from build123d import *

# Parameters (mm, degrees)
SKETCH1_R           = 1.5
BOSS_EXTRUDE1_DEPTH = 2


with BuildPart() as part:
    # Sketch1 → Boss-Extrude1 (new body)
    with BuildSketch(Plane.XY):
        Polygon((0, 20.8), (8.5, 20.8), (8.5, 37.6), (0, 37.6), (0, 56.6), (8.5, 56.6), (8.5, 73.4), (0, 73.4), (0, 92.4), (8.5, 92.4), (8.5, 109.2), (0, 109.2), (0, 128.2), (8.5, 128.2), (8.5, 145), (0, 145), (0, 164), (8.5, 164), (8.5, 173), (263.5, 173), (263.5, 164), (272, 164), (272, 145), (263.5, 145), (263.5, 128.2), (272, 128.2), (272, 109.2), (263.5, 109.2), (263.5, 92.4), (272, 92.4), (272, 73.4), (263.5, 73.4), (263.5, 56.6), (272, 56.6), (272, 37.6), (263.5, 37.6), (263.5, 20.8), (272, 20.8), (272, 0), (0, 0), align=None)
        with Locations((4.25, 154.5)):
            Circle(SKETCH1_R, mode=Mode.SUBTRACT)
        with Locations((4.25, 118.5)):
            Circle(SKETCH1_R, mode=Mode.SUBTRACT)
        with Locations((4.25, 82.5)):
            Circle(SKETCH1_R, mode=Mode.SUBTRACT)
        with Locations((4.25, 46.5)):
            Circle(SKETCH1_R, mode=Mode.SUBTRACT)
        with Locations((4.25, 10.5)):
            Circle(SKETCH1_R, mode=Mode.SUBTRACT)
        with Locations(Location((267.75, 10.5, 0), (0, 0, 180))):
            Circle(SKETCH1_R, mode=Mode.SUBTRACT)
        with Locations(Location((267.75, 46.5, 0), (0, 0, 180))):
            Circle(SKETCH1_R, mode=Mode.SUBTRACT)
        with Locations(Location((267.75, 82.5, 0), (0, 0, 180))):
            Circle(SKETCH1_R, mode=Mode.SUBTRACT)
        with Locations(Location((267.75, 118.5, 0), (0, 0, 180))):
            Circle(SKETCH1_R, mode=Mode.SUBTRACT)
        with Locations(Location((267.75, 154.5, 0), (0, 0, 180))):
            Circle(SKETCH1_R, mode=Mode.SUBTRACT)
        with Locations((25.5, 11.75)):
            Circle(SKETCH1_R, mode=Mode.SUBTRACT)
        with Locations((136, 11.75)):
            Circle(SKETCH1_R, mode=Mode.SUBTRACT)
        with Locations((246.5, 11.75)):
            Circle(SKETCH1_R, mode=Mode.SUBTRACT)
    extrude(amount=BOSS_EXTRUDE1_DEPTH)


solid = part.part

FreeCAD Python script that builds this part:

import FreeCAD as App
import Part
import Sketcher

V = App.Vector

doc = App.newDocument("Part")
body = doc.addObject("PartDesign::Body", "Body")

# Sketch on XY plane
sketch1 = body.newObject("Sketcher::SketchObject", "Sketch")
sketch1.AttachmentSupport = (doc.getObject("XY_Plane"), [""])
sketch1.MapMode = "FlatFace"
sketch1.addGeometry(Part.LineSegment(V(8.5, 20.8, 0), V(0, 20.8, 0)), False)
sketch1.addGeometry(Part.LineSegment(V(0, 20.8, 0), V(0, 0, 0)), False)
sketch1.addGeometry(Part.LineSegment(V(0, 0, 0), V(272, 0, 0)), False)
sketch1.addGeometry(Part.LineSegment(V(272, 0, 0), V(272, 20.8, 0)), False)
sketch1.addGeometry(Part.LineSegment(V(272, 20.8, 0), V(263.5, 20.8, 0)), False)
sketch1.addGeometry(Part.LineSegment(V(263.5, 20.8, 0), V(263.5, 37.6, 0)), False)
sketch1.addGeometry(Part.LineSegment(V(263.5, 37.6, 0), V(272, 37.6, 0)), False)
sketch1.addGeometry(Part.LineSegment(V(272, 37.6, 0), V(272, 56.6, 0)), False)
sketch1.addGeometry(Part.LineSegment(V(272, 56.6, 0), V(263.5, 56.6, 0)), False)
sketch1.addGeometry(Part.LineSegment(V(263.5, 56.6, 0), V(263.5, 73.4, 0)), False)
sketch1.addGeometry(Part.LineSegment(V(263.5, 73.4, 0), V(272, 73.4, 0)), False)
sketch1.addGeometry(Part.LineSegment(V(272, 73.4, 0), V(272, 92.4, 0)), False)
sketch1.addGeometry(Part.LineSegment(V(272, 92.4, 0), V(263.5, 92.4, 0)), False)
sketch1.addGeometry(Part.LineSegment(V(263.5, 92.4, 0), V(263.5, 109.2, 0)), False)
sketch1.addGeometry(Part.LineSegment(V(263.5, 109.2, 0), V(272, 109.2, 0)), False)
sketch1.addGeometry(Part.LineSegment(V(272, 109.2, 0), V(272, 128.2, 0)), False)
sketch1.addGeometry(Part.LineSegment(V(272, 128.2, 0), V(263.5, 128.2, 0)), False)
sketch1.addGeometry(Part.LineSegment(V(263.5, 128.2, 0), V(263.5, 145, 0)), False)
sketch1.addGeometry(Part.LineSegment(V(263.5, 145, 0), V(272, 145, 0)), False)
sketch1.addGeometry(Part.LineSegment(V(272, 145, 0), V(272, 164, 0)), False)
sketch1.addGeometry(Part.LineSegment(V(272, 164, 0), V(263.5, 164, 0)), False)
sketch1.addGeometry(Part.LineSegment(V(263.5, 164, 0), V(263.5, 173, 0)), False)
sketch1.addGeometry(Part.LineSegment(V(263.5, 173, 0), V(8.5, 173, 0)), False)
sketch1.addGeometry(Part.LineSegment(V(8.5, 173, 0), V(8.5, 164, 0)), False)
sketch1.addGeometry(Part.LineSegment(V(8.5, 164, 0), V(0, 164, 0)), False)
sketch1.addGeometry(Part.LineSegment(V(0, 164, 0), V(0, 145, 0)), False)
sketch1.addGeometry(Part.LineSegment(V(0, 145, 0), V(8.5, 145, 0)), False)
sketch1.addGeometry(Part.LineSegment(V(8.5, 145, 0), V(8.5, 128.2, 0)), False)
sketch1.addGeometry(Part.LineSegment(V(8.5, 128.2, 0), V(0, 128.2, 0)), False)
sketch1.addGeometry(Part.LineSegment(V(0, 128.2, 0), V(0, 109.2, 0)), False)
sketch1.addGeometry(Part.LineSegment(V(0, 109.2, 0), V(8.5, 109.2, 0)), False)
sketch1.addGeometry(Part.LineSegment(V(8.5, 109.2, 0), V(8.5, 92.4, 0)), False)
sketch1.addGeometry(Part.LineSegment(V(8.5, 92.4, 0), V(0, 92.4, 0)), False)
sketch1.addGeometry(Part.LineSegment(V(0, 92.4, 0), V(0, 73.4, 0)), False)
sketch1.addGeometry(Part.LineSegment(V(0, 73.4, 0), V(8.5, 73.4, 0)), False)
sketch1.addGeometry(Part.LineSegment(V(8.5, 73.4, 0), V(8.5, 56.6, 0)), False)
sketch1.addGeometry(Part.LineSegment(V(8.5, 56.6, 0), V(0, 56.6, 0)), False)
sketch1.addGeometry(Part.LineSegment(V(0, 56.6, 0), V(0, 37.6, 0)), False)
sketch1.addGeometry(Part.LineSegment(V(0, 37.6, 0), V(8.5, 37.6, 0)), False)
sketch1.addGeometry(Part.LineSegment(V(8.5, 37.6, 0), V(8.5, 20.8, 0)), False)
sketch1.addGeometry(Part.Circle(V(267.8, 10.5, 0), V(0, 0, 1), 1.5), False)
sketch1.addGeometry(Part.Circle(V(246.5, 11.8, 0), V(0, 0, 1), 1.5), False)
sketch1.addGeometry(Part.Circle(V(267.8, 46.5, 0), V(0, 0, 1), 1.5), False)
sketch1.addGeometry(Part.Circle(V(136, 11.8, 0), V(0, 0, 1), 1.5), False)
sketch1.addGeometry(Part.Circle(V(25.5, 11.8, 0), V(0, 0, 1), 1.5), False)
sketch1.addGeometry(Part.Circle(V(4.2, 10.5, 0), V(0, 0, 1), 1.5), False)
sketch1.addGeometry(Part.Circle(V(4.2, 46.5, 0), V(0, 0, 1), 1.5), False)
sketch1.addGeometry(Part.Circle(V(267.8, 82.5, 0), V(0, 0, 1), 1.5), False)
sketch1.addGeometry(Part.Circle(V(267.8, 118.5, 0), V(0, 0, 1), 1.5), False)
sketch1.addGeometry(Part.Circle(V(267.8, 154.5, 0), V(0, 0, 1), 1.5), False)
sketch1.addGeometry(Part.Circle(V(4.2, 82.5, 0), V(0, 0, 1), 1.5), False)
sketch1.addGeometry(Part.Circle(V(4.2, 118.5, 0), V(0, 0, 1), 1.5), False)
sketch1.addGeometry(Part.Circle(V(4.2, 154.5, 0), V(0, 0, 1), 1.5), False)
sketch1.addConstraint(Sketcher.Constraint("Coincident", 0, 2, 1, 1))
sketch1.addConstraint(Sketcher.Constraint("Coincident", 1, 2, 2, 1))
sketch1.addConstraint(Sketcher.Constraint("Coincident", 2, 2, 3, 1))
sketch1.addConstraint(Sketcher.Constraint("Coincident", 3, 2, 4, 1))
sketch1.addConstraint(Sketcher.Constraint("Coincident", 4, 2, 5, 1))
sketch1.addConstraint(Sketcher.Constraint("Coincident", 5, 2, 6, 1))
sketch1.addConstraint(Sketcher.Constraint("Coincident", 6, 2, 7, 1))
sketch1.addConstraint(Sketcher.Constraint("Coincident", 7, 2, 8, 1))
sketch1.addConstraint(Sketcher.Constraint("Coincident", 8, 2, 9, 1))
sketch1.addConstraint(Sketcher.Constraint("Coincident", 9, 2, 10, 1))
sketch1.addConstraint(Sketcher.Constraint("Coincident", 10, 2, 11, 1))
sketch1.addConstraint(Sketcher.Constraint("Coincident", 11, 2, 12, 1))
sketch1.addConstraint(Sketcher.Constraint("Coincident", 12, 2, 13, 1))
sketch1.addConstraint(Sketcher.Constraint("Coincident", 13, 2, 14, 1))
sketch1.addConstraint(Sketcher.Constraint("Coincident", 14, 2, 15, 1))
sketch1.addConstraint(Sketcher.Constraint("Coincident", 15, 2, 16, 1))
sketch1.addConstraint(Sketcher.Constraint("Coincident", 16, 2, 17, 1))
sketch1.addConstraint(Sketcher.Constraint("Coincident", 17, 2, 18, 1))
sketch1.addConstraint(Sketcher.Constraint("Coincident", 18, 2, 19, 1))
sketch1.addConstraint(Sketcher.Constraint("Coincident", 19, 2, 20, 1))
sketch1.addConstraint(Sketcher.Constraint("Coincident", 20, 2, 21, 1))
sketch1.addConstraint(Sketcher.Constraint("Coincident", 21, 2, 22, 1))
sketch1.addConstraint(Sketcher.Constraint("Coincident", 22, 2, 23, 1))
sketch1.addConstraint(Sketcher.Constraint("Coincident", 23, 2, 24, 1))
sketch1.addConstraint(Sketcher.Constraint("Coincident", 24, 2, 25, 1))
sketch1.addConstraint(Sketcher.Constraint("Coincident", 25, 2, 26, 1))
sketch1.addConstraint(Sketcher.Constraint("Coincident", 26, 2, 27, 1))
sketch1.addConstraint(Sketcher.Constraint("Coincident", 27, 2, 28, 1))
sketch1.addConstraint(Sketcher.Constraint("Coincident", 28, 2, 29, 1))
sketch1.addConstraint(Sketcher.Constraint("Coincident", 29, 2, 30, 1))
sketch1.addConstraint(Sketcher.Constraint("Coincident", 30, 2, 31, 1))
sketch1.addConstraint(Sketcher.Constraint("Coincident", 31, 2, 32, 1))
sketch1.addConstraint(Sketcher.Constraint("Coincident", 32, 2, 33, 1))
sketch1.addConstraint(Sketcher.Constraint("Coincident", 33, 2, 34, 1))
sketch1.addConstraint(Sketcher.Constraint("Coincident", 34, 2, 35, 1))
sketch1.addConstraint(Sketcher.Constraint("Coincident", 35, 2, 36, 1))
sketch1.addConstraint(Sketcher.Constraint("Coincident", 36, 2, 37, 1))
sketch1.addConstraint(Sketcher.Constraint("Coincident", 37, 2, 38, 1))
sketch1.addConstraint(Sketcher.Constraint("Coincident", 38, 2, 39, 1))
sketch1.addConstraint(Sketcher.Constraint("Coincident", 39, 2, 0, 1))
sketch1.addConstraint(Sketcher.Constraint("Horizontal", 0))
sketch1.addConstraint(Sketcher.Constraint("Vertical", 1))
sketch1.addConstraint(Sketcher.Constraint("Horizontal", 2))
sketch1.addConstraint(Sketcher.Constraint("Vertical", 3))
sketch1.addConstraint(Sketcher.Constraint("Horizontal", 4))
sketch1.addConstraint(Sketcher.Constraint("Vertical", 5))
sketch1.addConstraint(Sketcher.Constraint("Horizontal", 6))
sketch1.addConstraint(Sketcher.Constraint("Vertical", 7))
sketch1.addConstraint(Sketcher.Constraint("Horizontal", 8))
sketch1.addConstraint(Sketcher.Constraint("Vertical", 9))
sketch1.addConstraint(Sketcher.Constraint("Horizontal", 10))
sketch1.addConstraint(Sketcher.Constraint("Vertical", 11))
sketch1.addConstraint(Sketcher.Constraint("Horizontal", 12))
sketch1.addConstraint(Sketcher.Constraint("Vertical", 13))
sketch1.addConstraint(Sketcher.Constraint("Horizontal", 14))
sketch1.addConstraint(Sketcher.Constraint("Vertical", 15))
sketch1.addConstraint(Sketcher.Constraint("Horizontal", 16))
sketch1.addConstraint(Sketcher.Constraint("Vertical", 17))
sketch1.addConstraint(Sketcher.Constraint("Horizontal", 18))
sketch1.addConstraint(Sketcher.Constraint("Vertical", 19))
sketch1.addConstraint(Sketcher.Constraint("Horizontal", 20))
sketch1.addConstraint(Sketcher.Constraint("Vertical", 21))
sketch1.addConstraint(Sketcher.Constraint("Horizontal", 22))
sketch1.addConstraint(Sketcher.Constraint("Vertical", 23))
sketch1.addConstraint(Sketcher.Constraint("Horizontal", 24))
sketch1.addConstraint(Sketcher.Constraint("Vertical", 25))
sketch1.addConstraint(Sketcher.Constraint("Horizontal", 26))
sketch1.addConstraint(Sketcher.Constraint("Vertical", 27))
sketch1.addConstraint(Sketcher.Constraint("Horizontal", 28))
sketch1.addConstraint(Sketcher.Constraint("Vertical", 29))
sketch1.addConstraint(Sketcher.Constraint("Horizontal", 30))
sketch1.addConstraint(Sketcher.Constraint("Vertical", 31))
sketch1.addConstraint(Sketcher.Constraint("Horizontal", 32))
sketch1.addConstraint(Sketcher.Constraint("Vertical", 33))
sketch1.addConstraint(Sketcher.Constraint("Horizontal", 34))
sketch1.addConstraint(Sketcher.Constraint("Vertical", 35))
sketch1.addConstraint(Sketcher.Constraint("Horizontal", 36))
sketch1.addConstraint(Sketcher.Constraint("Vertical", 37))
sketch1.addConstraint(Sketcher.Constraint("Horizontal", 38))
sketch1.addConstraint(Sketcher.Constraint("Vertical", 39))
sketch1.addConstraint(Sketcher.Constraint("Coincident", 1, 2, -1, 1))
sketch1.addConstraint(Sketcher.Constraint("Equal", 40, 41))
sketch1.addConstraint(Sketcher.Constraint("Equal", 41, 42))
sketch1.addConstraint(Sketcher.Constraint("Equal", 42, 43))
sketch1.addConstraint(Sketcher.Constraint("Equal", 43, 44))
sketch1.addConstraint(Sketcher.Constraint("Equal", 44, 45))
sketch1.addConstraint(Sketcher.Constraint("Equal", 45, 46))
sketch1.addConstraint(Sketcher.Constraint("Equal", 46, 47))
sketch1.addConstraint(Sketcher.Constraint("Equal", 47, 48))
sketch1.addConstraint(Sketcher.Constraint("Equal", 48, 49))
sketch1.addConstraint(Sketcher.Constraint("Equal", 49, 50))
sketch1.addConstraint(Sketcher.Constraint("Equal", 50, 51))
sketch1.addConstraint(Sketcher.Constraint("Equal", 51, 52))
sketch1.addConstraint(Sketcher.Constraint("PointOnObject", 24, 2, -2))
sketch1.addConstraint(Sketcher.Constraint("PointOnObject", 28, 2, -2))
sketch1.addConstraint(Sketcher.Constraint("PointOnObject", 32, 2, -2))
sketch1.addConstraint(Sketcher.Constraint("PointOnObject", 36, 2, -2))
sketch1.addConstraint(Sketcher.Constraint("Horizontal", 41, 3, 43, 3))
sketch1.addConstraint(Sketcher.Constraint("Horizontal", 43, 3, 44, 3))
sketch1.addConstraint(Sketcher.Constraint("Horizontal", 40, 3, 45, 3))
sketch1.addConstraint(Sketcher.Constraint("Horizontal", 42, 3, 46, 3))
sketch1.addConstraint(Sketcher.Constraint("Horizontal", 47, 3, 50, 3))
sketch1.addConstraint(Sketcher.Constraint("Horizontal", 48, 3, 51, 3))
sketch1.addConstraint(Sketcher.Constraint("Horizontal", 49, 3, 52, 3))
sketch1.addConstraint(Sketcher.Constraint("Horizontal", 0, 2, 3, 2))
sketch1.addConstraint(Sketcher.Constraint("Horizontal", 20, 2, 23, 2))
sketch1.addConstraint(Sketcher.Constraint("Horizontal", 18, 2, 25, 2))
sketch1.addConstraint(Sketcher.Constraint("Horizontal", 16, 2, 27, 2))
sketch1.addConstraint(Sketcher.Constraint("Horizontal", 14, 2, 29, 2))
sketch1.addConstraint(Sketcher.Constraint("Horizontal", 12, 2, 31, 2))
sketch1.addConstraint(Sketcher.Constraint("Horizontal", 10, 2, 33, 2))
sketch1.addConstraint(Sketcher.Constraint("Horizontal", 8, 2, 35, 2))
sketch1.addConstraint(Sketcher.Constraint("Horizontal", 6, 2, 37, 2))
sketch1.addConstraint(Sketcher.Constraint("Vertical", 40, 3, 42, 3))
sketch1.addConstraint(Sketcher.Constraint("Vertical", 45, 3, 46, 3))
sketch1.addConstraint(Sketcher.Constraint("Vertical", 42, 3, 47, 3))
sketch1.addConstraint(Sketcher.Constraint("Vertical", 47, 3, 48, 3))
sketch1.addConstraint(Sketcher.Constraint("Vertical", 48, 3, 49, 3))
sketch1.addConstraint(Sketcher.Constraint("Vertical", 46, 3, 50, 3))
sketch1.addConstraint(Sketcher.Constraint("Vertical", 50, 3, 51, 3))
sketch1.addConstraint(Sketcher.Constraint("Vertical", 51, 3, 52, 3))
sketch1.addConstraint(Sketcher.Constraint("Vertical", 3, 2, 6, 2))
sketch1.addConstraint(Sketcher.Constraint("Vertical", 5, 2, 8, 2))
sketch1.addConstraint(Sketcher.Constraint("Vertical", 7, 2, 10, 2))
sketch1.addConstraint(Sketcher.Constraint("Vertical", 9, 2, 12, 2))
sketch1.addConstraint(Sketcher.Constraint("Vertical", 11, 2, 14, 2))
sketch1.addConstraint(Sketcher.Constraint("Vertical", 13, 2, 16, 2))
sketch1.addConstraint(Sketcher.Constraint("Vertical", 15, 2, 18, 2))
sketch1.addConstraint(Sketcher.Constraint("Vertical", 17, 2, 20, 2))
sketch1.addConstraint(Sketcher.Constraint("Vertical", 23, 2, 26, 2))
sketch1.addConstraint(Sketcher.Constraint("Vertical", 27, 2, 30, 2))
sketch1.addConstraint(Sketcher.Constraint("Vertical", 31, 2, 34, 2))
sketch1.addConstraint(Sketcher.Constraint("Vertical", 35, 2, 38, 2))
sketch1.addConstraint(Sketcher.Constraint("Equal", 0, 4))
sketch1.addConstraint(Sketcher.Constraint("Equal", 5, 9))
sketch1.addConstraint(Sketcher.Constraint("Equal", 7, 11))
sketch1.addConstraint(Sketcher.Constraint("Equal", 9, 13))
sketch1.addConstraint(Sketcher.Constraint("Equal", 11, 15))
sketch1.addConstraint(Sketcher.Constraint("Equal", 13, 17))
sketch1.addConstraint(Sketcher.Constraint("Equal", 15, 19))
sketch1.addConstraint(Sketcher.Constraint("Diameter", 40, 3.0))
sketch1.addConstraint(Sketcher.Constraint("DistanceX", 2, 1, 2, 2, 272.0))
sketch1.addConstraint(Sketcher.Constraint("DistanceX", 22, 2, 22, 1, 255.0))
sketch1.addConstraint(Sketcher.Constraint("DistanceY", 7, 1, 7, 2, 19.0))
sketch1.addConstraint(Sketcher.Constraint("DistanceY", 21, 1, 21, 2, 9.0))
sketch1.addConstraint(Sketcher.Constraint("DistanceY", 1, 2, 1, 1, 20.8))
sketch1.addConstraint(Sketcher.Constraint("DistanceY", 5, 1, 5, 2, 16.8))
sketch1.addConstraint(Sketcher.Constraint("DistanceX", -1, 1, 43, 3, 136.0))
sketch1.addConstraint(Sketcher.Constraint("DistanceY", 40, 3, 42, 3, 36.0))
sketch1.addConstraint(Sketcher.Constraint("DistanceX", 44, 3, 41, 3, 221.0))
sketch1.addConstraint(Sketcher.Constraint("DistanceY", 42, 3, 47, 3, 36.0))
sketch1.addConstraint(Sketcher.Constraint("DistanceY", 47, 3, 48, 3, 36.0))
sketch1.addConstraint(Sketcher.Constraint("DistanceY", 48, 3, 49, 3, 36.0))
sketch1.addConstraint(Sketcher.Constraint("DistanceX", 41, 3, 4, 2, 17.0))
sketch1.addConstraint(Sketcher.Constraint("DistanceY", -1, 1, 40, 3, 10.5))
sketch1.addConstraint(Sketcher.Constraint("DistanceX", 45, 3, 40, 3, 263.5))
sketch1.addConstraint(Sketcher.Constraint("DistanceX", -1, 1, 40, 3, 267.75))
sketch1.addConstraint(Sketcher.Constraint("DistanceY", -1, 1, 41, 3, 11.75))
pad1 = body.newObject("PartDesign::Pad", "Pad")
pad1.Profile = sketch1
pad1.Length = 2

doc.recompute()
